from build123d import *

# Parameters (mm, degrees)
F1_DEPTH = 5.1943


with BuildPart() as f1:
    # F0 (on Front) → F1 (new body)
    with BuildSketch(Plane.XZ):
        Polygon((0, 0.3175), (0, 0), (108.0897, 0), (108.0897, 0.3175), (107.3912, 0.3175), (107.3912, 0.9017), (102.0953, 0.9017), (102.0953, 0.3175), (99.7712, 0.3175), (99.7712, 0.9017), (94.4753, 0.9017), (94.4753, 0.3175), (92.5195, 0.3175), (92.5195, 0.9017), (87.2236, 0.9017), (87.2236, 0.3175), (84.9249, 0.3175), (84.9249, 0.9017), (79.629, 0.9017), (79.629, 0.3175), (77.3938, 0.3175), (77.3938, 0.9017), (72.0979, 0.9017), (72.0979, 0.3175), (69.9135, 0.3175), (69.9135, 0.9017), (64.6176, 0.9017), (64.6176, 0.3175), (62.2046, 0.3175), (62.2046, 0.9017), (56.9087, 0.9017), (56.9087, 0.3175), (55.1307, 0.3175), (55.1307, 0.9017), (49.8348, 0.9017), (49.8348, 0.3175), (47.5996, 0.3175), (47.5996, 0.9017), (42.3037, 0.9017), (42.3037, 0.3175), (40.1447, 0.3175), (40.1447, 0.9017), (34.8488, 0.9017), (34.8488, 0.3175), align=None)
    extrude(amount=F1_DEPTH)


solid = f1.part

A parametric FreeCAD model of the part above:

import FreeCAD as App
import Part
import Sketcher

V = App.Vector
Q = App.Units.Quantity


def add_polygon(sketch, points):
    """Adds a closed chain of lines whose ends are joined by coincident constraints."""
    first, n = sketch.GeometryCount, len(points)
    for a, b in zip(points, points[1:] + points[:1]):
        sketch.addGeometry(Part.LineSegment(App.Vector(*a, 0), App.Vector(*b, 0)), False)
    for i in range(n):
        sketch.addConstraint(Sketcher.Constraint("Coincident", first + i, 2, first + (i + 1) % n, 1))

doc = App.newDocument("Part")
body = doc.addObject("PartDesign::Body", "Body")

sketch1 = doc.addObject("Sketcher::SketchObject", "Sketch")
body.addObject(sketch1)
sketch1.AttachmentSupport = (doc.XZ_Plane, [""])
sketch1.MapMode = "FlatFace"
add_polygon(sketch1, [(0, 0.32), (0, 0), (108.09, 0), (108.09, 0.32), (107.39, 0.32), (107.39, 0.9), (102.1, 0.9), (102.1, 0.32), (99.77, 0.32), (99.77, 0.9), (94.48, 0.9), (94.48, 0.32), (92.52, 0.32), (92.52, 0.9), (87.22, 0.9), (87.22, 0.32), (84.92, 0.32), (84.92, 0.9), (79.63, 0.9), (79.63, 0.32), (77.39, 0.32), (77.39, 0.9), (72.1, 0.9), (72.1, 0.32), (69.91, 0.32), (69.91, 0.9), (64.62, 0.9), (64.62, 0.32), (62.2, 0.32), (62.2, 0.9), (56.91, 0.9), (56.91, 0.32), (55.13, 0.32), (55.13, 0.9), (49.83, 0.9), (49.83, 0.32), (47.6, 0.32), (47.6, 0.9), (42.3, 0.9), (42.3, 0.32), (40.14, 0.32), (40.14, 0.9), (34.85, 0.9), (34.85, 0.32)])
sketch1.addConstraint(Sketcher.Constraint("Vertical", 0))
sketch1.addConstraint(Sketcher.Constraint("Horizontal", 1))
sketch1.addConstraint(Sketcher.Constraint("Vertical", 2))
sketch1.addConstraint(Sketcher.Constraint("Horizontal", 3))
sketch1.addConstraint(Sketcher.Constraint("Vertical", 4))
sketch1.addConstraint(Sketcher.Constraint("Horizontal", 5))
sketch1.addConstraint(Sketcher.Constraint("Vertical", 6))
sketch1.addConstraint(Sketcher.Constraint("Horizontal", 7))
sketch1.addConstraint(Sketcher.Constraint("Vertical", 8))
sketch1.addConstraint(Sketcher.Constraint("Horizontal", 9))
sketch1.addConstraint(Sketcher.Constraint("Vertical", 10))
sketch1.addConstraint(Sketcher.Constraint("Horizontal", 11))
sketch1.addConstraint(Sketcher.Constraint("Vertical", 12))
sketch1.addConstraint(Sketcher.Constraint("Horizontal", 13))
sketch1.addConstraint(Sketcher.Constraint("Vertical", 14))
sketch1.addConstraint(Sketcher.Constraint("Horizontal", 15))
sketch1.addConstraint(Sketcher.Constraint("Vertical", 16))
sketch1.addConstraint(Sketcher.Constraint("Horizontal", 17))
sketch1.addConstraint(Sketcher.Constraint("Vertical", 18))
sketch1.addConstraint(Sketcher.Constraint("Horizontal", 19))
sketch1.addConstraint(Sketcher.Constraint("Vertical", 20))
sketch1.addConstraint(Sketcher.Constraint("Horizontal", 21))
sketch1.addConstraint(Sketcher.Constraint("Vertical", 22))
sketch1.addConstraint(Sketcher.Constraint("Horizontal", 23))
sketch1.addConstraint(Sketcher.Constraint("Vertical", 24))
sketch1.addConstraint(Sketcher.Constraint("Horizontal", 25))
sketch1.addConstraint(Sketcher.Constraint("Vertical", 26))
sketch1.addConstraint(Sketcher.Constraint("Horizontal", 27))
sketch1.addConstraint(Sketcher.Constraint("Vertical", 28))
sketch1.addConstraint(Sketcher.Constraint("Horizontal", 29))
sketch1.addConstraint(Sketcher.Constraint("Vertical", 30))
sketch1.addConstraint(Sketcher.Constraint("Horizontal", 31))
sketch1.addConstraint(Sketcher.Constraint("Vertical", 32))
sketch1.addConstraint(Sketcher.Constraint("Horizontal", 33))
sketch1.addConstraint(Sketcher.Constraint("Vertical", 34))
sketch1.addConstraint(Sketcher.Constraint("Horizontal", 35))
sketch1.addConstraint(Sketcher.Constraint("Vertical", 36))
sketch1.addConstraint(Sketcher.Constraint("Horizontal", 37))
sketch1.addConstraint(Sketcher.Constraint("Vertical", 38))
sketch1.addConstraint(Sketcher.Constraint("Horizontal", 39))
sketch1.addConstraint(Sketcher.Constraint("Vertical", 40))
sketch1.addConstraint(Sketcher.Constraint("Horizontal", 41))
sketch1.addConstraint(Sketcher.Constraint("Vertical", 42))
sketch1.addConstraint(Sketcher.Constraint("Horizontal", 43))
sketch1.addConstraint(Sketcher.Constraint("Coincident", 0, 2, -1, 1))
sketch1.addConstraint(Sketcher.Constraint("Horizontal", 3, 2, 6, 2))
sketch1.addConstraint(Sketcher.Constraint("Horizontal", 5, 2, 8, 2))
sketch1.addConstraint(Sketcher.Constraint("Horizontal", 7, 2, 10, 2))
sketch1.addConstraint(Sketcher.Constraint("Horizontal", 9, 2, 12, 2))
sketch1.addConstraint(Sketcher.Constraint("Horizontal", 11, 2, 14, 2))
sketch1.addConstraint(Sketcher.Constraint("Horizontal", 13, 2, 16, 2))
sketch1.addConstraint(Sketcher.Constraint("Horizontal", 15, 2, 18, 2))
sketch1.addConstraint(Sketcher.Constraint("Horizontal", 17, 2, 20, 2))
sketch1.addConstraint(Sketcher.Constraint("Horizontal", 19, 2, 22, 2))
sketch1.addConstraint(Sketcher.Constraint("Horizontal", 21, 2, 24, 2))
sketch1.addConstraint(Sketcher.Constraint("Horizontal", 23, 2, 26, 2))
sketch1.addConstraint(Sketcher.Constraint("Horizontal", 25, 2, 28, 2))
sketch1.addConstraint(Sketcher.Constraint("Horizontal", 27, 2, 30, 2))
sketch1.addConstraint(Sketcher.Constraint("Horizontal", 29, 2, 32, 2))
sketch1.addConstraint(Sketcher.Constraint("Horizontal", 31, 2, 34, 2))
sketch1.addConstraint(Sketcher.Constraint("Horizontal", 33, 2, 36, 2))
sketch1.addConstraint(Sketcher.Constraint("Horizontal", 35, 2, 38, 2))
sketch1.addConstraint(Sketcher.Constraint("Horizontal", 37, 2, 40, 2))
sketch1.addConstraint(Sketcher.Constraint("Horizontal", 39, 2, 42, 2))
sketch1.addConstraint(Sketcher.Constraint("Equal", 5, 9))
sketch1.addConstraint(Sketcher.Constraint("Equal", 9, 13))
sketch1.addConstraint(Sketcher.Constraint("Equal", 13, 17))
sketch1.addConstraint(Sketcher.Constraint("Equal", 17, 21))
sketch1.addConstraint(Sketcher.Constraint("Equal", 21, 25))
sketch1.addConstraint(Sketcher.Constraint("Equal", 25, 29))
sketch1.addConstraint(Sketcher.Constraint("Equal", 29, 33))
sketch1.addConstraint(Sketcher.Constraint("Equal", 19, 35))
sketch1.addConstraint(Sketcher.Constraint("Equal", 33, 37))
sketch1.addConstraint(Sketcher.Constraint("Equal", 37, 41))
sketch1.addConstraint(Sketcher.Constraint("DistanceX", 31, 2, 31, 1, Q("0.07 in")))
sketch1.addConstraint(Sketcher.Constraint("DistanceX", 7, 2, 3, 2, Q("0.3 in")))
sketch1.addConstraint(Sketcher.Constraint("DistanceX", 11, 2, 11, 1, Q("0.077 in")))
sketch1.addConstraint(Sketcher.Constraint("DistanceX", 19, 2, 19, 1, Q("0.088 in")))
sketch1.addConstraint(Sketcher.Constraint("DistanceX", 23, 2, 23, 1, Q("0.086 in")))
sketch1.addConstraint(Sketcher.Constraint("DistanceX", 27, 2, 27, 1, Q("0.095 in")))
sketch1.addConstraint(Sketcher.Constraint("DistanceX", 39, 2, 39, 1, Q("0.085 in")))
sketch1.addConstraint(Sketcher.Constraint("DistanceX", 43, 2, 43, 1, Q("1.372 in")))
sketch1.addConstraint(Sketcher.Constraint("DistanceY", 4, 1, 4, 2, Q("0.023 in")))
sketch1.addConstraint(Sketcher.Constraint("DistanceX", 1, 1, 1, 2, Q("4.2555 in")))
sketch1.addConstraint(Sketcher.Constraint("DistanceX", 3, 2, 3, 1, Q("0.0275 in")))
sketch1.addConstraint(Sketcher.Constraint("DistanceX", 5, 2, 5, 1, Q("0.2085 in")))
sketch1.addConstraint(Sketcher.Constraint("DistanceY", 0, 2, 0, 1, Q("0.0125 in")))
pad1 = doc.addObject("PartDesign::Pad", "Pad")
body.addObject(pad1)
pad1.Profile = sketch1
pad1.Length = Q("0.2045 in")

doc.recompute()
